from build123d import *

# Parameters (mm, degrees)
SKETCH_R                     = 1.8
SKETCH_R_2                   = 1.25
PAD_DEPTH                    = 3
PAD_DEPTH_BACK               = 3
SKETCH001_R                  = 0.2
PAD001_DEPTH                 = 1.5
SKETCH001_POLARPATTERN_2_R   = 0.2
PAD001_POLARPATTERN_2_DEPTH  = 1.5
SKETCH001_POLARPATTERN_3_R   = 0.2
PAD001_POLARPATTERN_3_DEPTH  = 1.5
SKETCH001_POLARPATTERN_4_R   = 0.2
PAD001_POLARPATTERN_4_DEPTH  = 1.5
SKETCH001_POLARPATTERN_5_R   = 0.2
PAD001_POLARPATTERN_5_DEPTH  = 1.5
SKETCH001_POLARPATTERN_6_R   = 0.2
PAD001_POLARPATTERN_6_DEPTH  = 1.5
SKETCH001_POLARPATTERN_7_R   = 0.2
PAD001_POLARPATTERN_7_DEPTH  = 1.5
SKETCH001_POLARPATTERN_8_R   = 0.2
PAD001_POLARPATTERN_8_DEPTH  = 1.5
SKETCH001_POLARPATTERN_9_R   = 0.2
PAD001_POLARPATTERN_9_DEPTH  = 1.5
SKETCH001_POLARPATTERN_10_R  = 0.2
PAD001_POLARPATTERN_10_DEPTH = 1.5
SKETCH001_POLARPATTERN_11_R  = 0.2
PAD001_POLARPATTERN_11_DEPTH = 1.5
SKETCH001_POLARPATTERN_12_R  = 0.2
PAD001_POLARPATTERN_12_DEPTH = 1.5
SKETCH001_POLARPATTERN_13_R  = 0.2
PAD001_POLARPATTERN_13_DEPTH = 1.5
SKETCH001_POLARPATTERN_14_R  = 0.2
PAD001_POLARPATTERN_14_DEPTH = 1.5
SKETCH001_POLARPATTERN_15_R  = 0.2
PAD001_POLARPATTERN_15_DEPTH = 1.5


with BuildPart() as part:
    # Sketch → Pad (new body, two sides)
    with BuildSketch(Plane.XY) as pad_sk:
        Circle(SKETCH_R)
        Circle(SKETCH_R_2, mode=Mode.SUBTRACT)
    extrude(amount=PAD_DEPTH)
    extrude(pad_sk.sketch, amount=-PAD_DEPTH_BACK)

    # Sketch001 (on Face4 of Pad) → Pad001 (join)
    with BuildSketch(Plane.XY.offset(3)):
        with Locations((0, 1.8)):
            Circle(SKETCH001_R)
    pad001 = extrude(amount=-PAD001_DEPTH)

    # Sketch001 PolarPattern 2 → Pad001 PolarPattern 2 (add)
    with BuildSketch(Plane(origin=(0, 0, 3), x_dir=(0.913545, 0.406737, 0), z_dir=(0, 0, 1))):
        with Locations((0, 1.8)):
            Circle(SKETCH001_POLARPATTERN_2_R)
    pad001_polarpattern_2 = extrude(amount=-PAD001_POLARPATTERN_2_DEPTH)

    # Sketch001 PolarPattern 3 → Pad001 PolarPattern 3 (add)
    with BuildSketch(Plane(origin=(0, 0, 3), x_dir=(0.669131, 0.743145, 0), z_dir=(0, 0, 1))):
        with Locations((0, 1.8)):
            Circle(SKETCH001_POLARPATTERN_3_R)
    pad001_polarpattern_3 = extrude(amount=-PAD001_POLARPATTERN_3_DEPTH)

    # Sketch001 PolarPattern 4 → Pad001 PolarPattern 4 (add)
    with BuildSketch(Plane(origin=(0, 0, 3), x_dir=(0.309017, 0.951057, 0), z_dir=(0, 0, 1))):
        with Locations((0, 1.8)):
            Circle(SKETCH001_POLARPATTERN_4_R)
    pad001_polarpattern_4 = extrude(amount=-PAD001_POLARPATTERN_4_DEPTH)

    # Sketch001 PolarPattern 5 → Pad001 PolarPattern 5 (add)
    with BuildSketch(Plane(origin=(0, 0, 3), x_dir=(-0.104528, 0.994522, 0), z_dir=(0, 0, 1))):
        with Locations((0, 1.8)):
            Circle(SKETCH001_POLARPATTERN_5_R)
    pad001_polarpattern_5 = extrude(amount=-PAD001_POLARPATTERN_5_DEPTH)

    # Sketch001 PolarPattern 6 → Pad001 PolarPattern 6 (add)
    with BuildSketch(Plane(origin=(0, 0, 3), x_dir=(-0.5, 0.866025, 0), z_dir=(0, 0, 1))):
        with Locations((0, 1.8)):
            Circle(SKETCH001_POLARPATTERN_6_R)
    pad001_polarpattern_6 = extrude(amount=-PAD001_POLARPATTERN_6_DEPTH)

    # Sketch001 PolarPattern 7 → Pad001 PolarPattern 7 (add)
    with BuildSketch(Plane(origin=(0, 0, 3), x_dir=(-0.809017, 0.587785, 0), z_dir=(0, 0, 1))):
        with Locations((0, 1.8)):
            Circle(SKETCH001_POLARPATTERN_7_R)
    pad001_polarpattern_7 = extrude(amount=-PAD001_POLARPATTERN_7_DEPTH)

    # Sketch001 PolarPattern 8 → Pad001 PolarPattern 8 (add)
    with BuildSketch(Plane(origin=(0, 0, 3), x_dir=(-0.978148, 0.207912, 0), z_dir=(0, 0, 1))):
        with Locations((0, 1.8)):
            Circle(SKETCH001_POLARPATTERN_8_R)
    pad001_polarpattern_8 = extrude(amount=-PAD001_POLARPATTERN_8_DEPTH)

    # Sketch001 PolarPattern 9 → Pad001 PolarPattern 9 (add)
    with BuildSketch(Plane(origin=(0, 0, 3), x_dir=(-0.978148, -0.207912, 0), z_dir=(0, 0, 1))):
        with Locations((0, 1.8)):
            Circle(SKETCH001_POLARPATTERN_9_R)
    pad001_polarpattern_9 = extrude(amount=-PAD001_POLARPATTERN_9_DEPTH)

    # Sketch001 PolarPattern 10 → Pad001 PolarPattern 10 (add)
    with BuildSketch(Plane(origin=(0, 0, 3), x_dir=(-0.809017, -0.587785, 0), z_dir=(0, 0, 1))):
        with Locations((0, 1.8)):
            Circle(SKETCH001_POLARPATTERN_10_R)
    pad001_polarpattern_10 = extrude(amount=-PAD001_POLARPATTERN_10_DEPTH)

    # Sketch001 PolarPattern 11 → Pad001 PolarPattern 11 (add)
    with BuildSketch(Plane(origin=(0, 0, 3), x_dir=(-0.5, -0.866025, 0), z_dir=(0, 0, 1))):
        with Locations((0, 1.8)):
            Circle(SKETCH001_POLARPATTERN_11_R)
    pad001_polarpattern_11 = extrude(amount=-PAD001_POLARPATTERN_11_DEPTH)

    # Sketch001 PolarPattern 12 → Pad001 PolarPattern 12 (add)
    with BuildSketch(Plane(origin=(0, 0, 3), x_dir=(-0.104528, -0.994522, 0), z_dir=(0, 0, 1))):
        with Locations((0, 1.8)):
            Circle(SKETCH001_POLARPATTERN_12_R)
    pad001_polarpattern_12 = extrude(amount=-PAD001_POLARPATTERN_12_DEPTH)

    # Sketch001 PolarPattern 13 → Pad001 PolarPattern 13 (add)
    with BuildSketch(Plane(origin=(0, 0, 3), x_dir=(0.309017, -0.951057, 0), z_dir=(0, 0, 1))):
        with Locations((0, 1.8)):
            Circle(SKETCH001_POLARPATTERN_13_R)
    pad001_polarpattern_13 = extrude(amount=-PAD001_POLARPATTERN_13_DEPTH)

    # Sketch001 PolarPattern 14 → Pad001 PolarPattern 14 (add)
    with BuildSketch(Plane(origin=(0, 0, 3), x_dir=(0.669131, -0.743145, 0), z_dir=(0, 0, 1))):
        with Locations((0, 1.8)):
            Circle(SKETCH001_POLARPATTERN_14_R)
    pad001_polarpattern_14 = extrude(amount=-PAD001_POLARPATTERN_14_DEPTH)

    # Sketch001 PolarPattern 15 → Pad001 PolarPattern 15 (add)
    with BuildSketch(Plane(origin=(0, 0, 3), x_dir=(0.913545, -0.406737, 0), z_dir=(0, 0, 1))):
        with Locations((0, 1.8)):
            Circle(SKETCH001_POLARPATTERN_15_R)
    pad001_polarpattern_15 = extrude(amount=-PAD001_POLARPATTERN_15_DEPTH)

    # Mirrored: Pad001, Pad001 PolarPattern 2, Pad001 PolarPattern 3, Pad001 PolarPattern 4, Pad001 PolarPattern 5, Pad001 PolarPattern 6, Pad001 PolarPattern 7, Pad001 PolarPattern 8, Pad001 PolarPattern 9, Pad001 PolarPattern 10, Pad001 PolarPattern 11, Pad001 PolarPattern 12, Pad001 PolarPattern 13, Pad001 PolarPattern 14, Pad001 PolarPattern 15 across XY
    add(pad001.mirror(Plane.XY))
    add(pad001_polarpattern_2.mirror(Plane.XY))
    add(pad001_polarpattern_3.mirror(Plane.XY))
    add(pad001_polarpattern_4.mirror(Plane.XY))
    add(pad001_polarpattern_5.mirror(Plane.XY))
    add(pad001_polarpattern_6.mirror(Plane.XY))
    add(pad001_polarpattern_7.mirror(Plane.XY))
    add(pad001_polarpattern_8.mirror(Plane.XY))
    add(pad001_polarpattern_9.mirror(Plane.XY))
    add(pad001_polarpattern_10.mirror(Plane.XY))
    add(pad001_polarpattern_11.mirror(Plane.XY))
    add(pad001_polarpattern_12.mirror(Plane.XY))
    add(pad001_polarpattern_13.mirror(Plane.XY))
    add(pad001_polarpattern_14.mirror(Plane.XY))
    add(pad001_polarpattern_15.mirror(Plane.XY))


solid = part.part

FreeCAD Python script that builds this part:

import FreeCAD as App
import Part
import Sketcher

doc = App.newDocument("Part")
body = doc.addObject("PartDesign::Body", "Body")

# Sketch on XY plane
sketch1 = doc.addObject("Sketcher::SketchObject", "Sketch")
body.addObject(sketch1)
sketch1.AttachmentSupport = (doc.XY_Plane, [""])
sketch1.MapMode = "FlatFace"
sketch1.addGeometry([
    Part.Circle(App.Vector(0, 0, 0), App.Vector(0, 0, 1), 1.8),
    Part.Circle(App.Vector(0, 0, 0), App.Vector(0, 0, 1), 1.25),
], False)
sketch1.addConstraint([
    Sketcher.Constraint("Coincident", 0, 3, -1, 1),
    Sketcher.Constraint("Coincident", 1, 3, -1, 1),
    Sketcher.Constraint("Diameter", 0, 3.6),
    Sketcher.Constraint("Diameter", 1, 2.5),
])
pad1 = doc.addObject("PartDesign::Pad", "Pad")
body.addObject(pad1)
pad1.Profile = sketch1
pad1.Type = "TwoLengths"
pad1.Length = 3
pad1.Length2 = 3

# Sketch on XY plane
sketch2 = doc.addObject("Sketcher::SketchObject", "Sketch001")
body.addObject(sketch2)
sketch2.AttachmentSupport = (doc.XY_Plane, [""])
sketch2.MapMode = "FlatFace"
sketch2.AttachmentOffset = App.Placement(App.Vector(0, 0, 3), App.Rotation())
sketch2.addGeometry(Part.Circle(App.Vector(0, 1.8, 0), App.Vector(0, 0, 1), 0.2), False)
sketch2.addConstraint([
    Sketcher.Constraint("PointOnObject", 0, 3, -2),
    Sketcher.Constraint("Diameter", 0, 0.4),
    Sketcher.Constraint("DistanceY", -1, 1, 0, 3, 1.8),
])
pad2 = doc.addObject("PartDesign::Pad", "Pad001")
body.addObject(pad2)
pad2.Profile = sketch2
pad2.Length = 1.5
pad2.Reversed = True

# Sketch on XY plane
sketch3 = doc.addObject("Sketcher::SketchObject", "Sketch002")
body.addObject(sketch3)
sketch3.AttachmentSupport = (doc.XY_Plane, [""])
sketch3.MapMode = "FlatFace"
sketch3.AttachmentOffset = App.Placement(App.Vector(0, 0, 3), App.Rotation())
sketch3.addGeometry(Part.Circle(App.Vector(-0.732127, 1.644381, 0), App.Vector(0, 0, 1), 0.2), False)
sketch3.addConstraint([
    Sketcher.Constraint("Diameter", 0, 0.4),
    Sketcher.Constraint("DistanceY", -1, 1, 0, 3, 1.644381),
    Sketcher.Constraint("DistanceX", 0, 3, -1, 1, 0.732127),
])
pad3 = doc.addObject("PartDesign::Pad", "Pad002")
body.addObject(pad3)
pad3.Profile = sketch3
pad3.Length = 1.5
pad3.Reversed = True

# Sketch on XY plane
sketch4 = doc.addObject("Sketcher::SketchObject", "Sketch003")
body.addObject(sketch4)
sketch4.AttachmentSupport = (doc.XY_Plane, [""])
sketch4.MapMode = "FlatFace"
sketch4.AttachmentOffset = App.Placement(App.Vector(0, 0, 3), App.Rotation())
sketch4.addGeometry(Part.Circle(App.Vector(-1.33766, 1.204435, 0), App.Vector(0, 0, 1), 0.2), False)
sketch4.addConstraint([
    Sketcher.Constraint("Diameter", 0, 0.4),
    Sketcher.Constraint("DistanceX", 0, 3, -1, 1, 1.33766),
    Sketcher.Constraint("DistanceY", -1, 1, 0, 3, 1.204435),
])
pad4 = doc.addObject("PartDesign::Pad", "Pad003")
body.addObject(pad4)
pad4.Profile = sketch4
pad4.Length = 1.5
pad4.Reversed = True

# Sketch on XY plane
sketch5 = doc.addObject("Sketcher::SketchObject", "Sketch004")
body.addObject(sketch5)
sketch5.AttachmentSupport = (doc.XY_Plane, [""])
sketch5.MapMode = "FlatFace"
sketch5.AttachmentOffset = App.Placement(App.Vector(0, 0, 3), App.Rotation())
sketch5.addGeometry(Part.Circle(App.Vector(-1.711902, 0.55623, 0), App.Vector(0, 0, 1), 0.2), False)
sketch5.addConstraint([
    Sketcher.Constraint("Diameter", 0, 0.4),
    Sketcher.Constraint("DistanceX", 0, 3, -1, 1, 1.711902),
    Sketcher.Constraint("DistanceY", -1, 1, 0, 3, 0.55623),
])
pad5 = doc.addObject("PartDesign::Pad", "Pad004")
body.addObject(pad5)
pad5.Profile = sketch5
pad5.Length = 1.5
pad5.Reversed = True

# Sketch on XY plane
sketch6 = doc.addObject("Sketcher::SketchObject", "Sketch005")
body.addObject(sketch6)
sketch6.AttachmentSupport = (doc.XY_Plane, [""])
sketch6.MapMode = "FlatFace"
sketch6.AttachmentOffset = App.Placement(App.Vector(0, 0, 3), App.Rotation())
sketch6.addGeometry(Part.Circle(App.Vector(-1.79014, -0.18815, 0), App.Vector(0, 0, 1), 0.2), False)
sketch6.addConstraint([
    Sketcher.Constraint("Diameter", 0, 0.4),
    Sketcher.Constraint("DistanceX", 0, 3, -1, 1, 1.79014),
    Sketcher.Constraint("DistanceY", 0, 3, -1, 1, 0.18815),
])
pad6 = doc.addObject("PartDesign::Pad", "Pad005")
body.addObject(pad6)
pad6.Profile = sketch6
pad6.Length = 1.5
pad6.Reversed = True

# Sketch on XY plane
sketch7 = doc.addObject("Sketcher::SketchObject", "Sketch006")
body.addObject(sketch7)
sketch7.AttachmentSupport = (doc.XY_Plane, [""])
sketch7.MapMode = "FlatFace"
sketch7.AttachmentOffset = App.Placement(App.Vector(0, 0, 3), App.Rotation())
sketch7.addGeometry(Part.Circle(App.Vector(-1.558846, -0.9, 0), App.Vector(0, 0, 1), 0.2), False)
sketch7.addConstraint([
    Sketcher.Constraint("Diameter", 0, 0.4),
    Sketcher.Constraint("DistanceY", 0, 3, -1, 1, 0.9),
    Sketcher.Constraint("DistanceX", 0, 3, -1, 1, 1.558846),
])
pad7 = doc.addObject("PartDesign::Pad", "Pad006")
body.addObject(pad7)
pad7.Profile = sketch7
pad7.Length = 1.5
pad7.Reversed = True

# Sketch on XY plane
sketch8 = doc.addObject("Sketcher::SketchObject", "Sketch007")
body.addObject(sketch8)
sketch8.AttachmentSupport = (doc.XY_Plane, [""])
sketch8.MapMode = "FlatFace"
sketch8.AttachmentOffset = App.Placement(App.Vector(0, 0, 3), App.Rotation())
sketch8.addGeometry(Part.Circle(App.Vector(-1.058013, -1.456231, 0), App.Vector(0, 0, 1), 0.2), False)
sketch8.addConstraint([
    Sketcher.Constraint("Diameter", 0, 0.4),
    Sketcher.Constraint("DistanceY", 0, 3, -1, 1, 1.456231),
    Sketcher.Constraint("DistanceX", 0, 3, -1, 1, 1.058013),
])
pad8 = doc.addObject("PartDesign::Pad", "Pad007")
body.addObject(pad8)
pad8.Profile = sketch8
pad8.Length = 1.5
pad8.Reversed = True

# Sketch on XY plane
sketch9 = doc.addObject("Sketcher::SketchObject", "Sketch008")
body.addObject(sketch9)
sketch9.AttachmentSupport = (doc.XY_Plane, [""])
sketch9.MapMode = "FlatFace"
sketch9.AttachmentOffset = App.Placement(App.Vector(0, 0, 3), App.Rotation())
sketch9.addGeometry(Part.Circle(App.Vector(-0.374241, -1.760666, 0), App.Vector(0, 0, 1), 0.2), False)
sketch9.addConstraint([
    Sketcher.Constraint("Diameter", 0, 0.4),
    Sketcher.Constraint("DistanceX", 0, 3, -1, 1, 0.374241),
    Sketcher.Constraint("DistanceY", 0, 3, -1, 1, 1.760666),
])
pad9 = doc.addObject("PartDesign::Pad", "Pad008")
body.addObject(pad9)
pad9.Profile = sketch9
pad9.Length = 1.5
pad9.Reversed = True

# Sketch on XY plane
sketch10 = doc.addObject("Sketcher::SketchObject", "Sketch009")
body.addObject(sketch10)
sketch10.AttachmentSupport = (doc.XY_Plane, [""])
sketch10.MapMode = "FlatFace"
sketch10.AttachmentOffset = App.Placement(App.Vector(0, 0, 3), App.Rotation())
sketch10.addGeometry(Part.Circle(App.Vector(0.374241, -1.760666, 0), App.Vector(0, 0, 1), 0.2), False)
sketch10.addConstraint([
    Sketcher.Constraint("Diameter", 0, 0.4),
    Sketcher.Constraint("DistanceX", -1, 1, 0, 3, 0.374241),
    Sketcher.Constraint("DistanceY", 0, 3, -1, 1, 1.760666),
])
pad10 = doc.addObject("PartDesign::Pad", "Pad009")
body.addObject(pad10)
pad10.Profile = sketch10
pad10.Length = 1.5
pad10.Reversed = True

# Sketch on XY plane
sketch11 = doc.addObject("Sketcher::SketchObject", "Sketch010")
body.addObject(sketch11)
sketch11.AttachmentSupport = (doc.XY_Plane, [""])
sketch11.MapMode = "FlatFace"
sketch11.AttachmentOffset = App.Placement(App.Vector(0, 0, 3), App.Rotation())
sketch11.addGeometry(Part.Circle(App.Vector(1.058013, -1.456231, 0), App.Vector(0, 0, 1), 0.2), False)
sketch11.addConstraint([
    Sketcher.Constraint("Diameter", 0, 0.4),
    Sketcher.Constraint("DistanceY", 0, 3, -1, 1, 1.456231),
    Sketcher.Constraint("DistanceX", -1, 1, 0, 3, 1.058013),
])
pad11 = doc.addObject("PartDesign::Pad", "Pad010")
body.addObject(pad11)
pad11.Profile = sketch11
pad11.Length = 1.5
pad11.Reversed = True

# Sketch on XY plane
sketch12 = doc.addObject("Sketcher::SketchObject", "Sketch011")
body.addObject(sketch12)
sketch12.AttachmentSupport = (doc.XY_Plane, [""])
sketch12.MapMode = "FlatFace"
sketch12.AttachmentOffset = App.Placement(App.Vector(0, 0, 3), App.Rotation())
sketch12.addGeometry(Part.Circle(App.Vector(1.558846, -0.9, 0), App.Vector(0, 0, 1), 0.2), False)
sketch12.addConstraint([
    Sketcher.Constraint("Diameter", 0, 0.4),
    Sketcher.Constraint("DistanceY", 0, 3, -1, 1, 0.9),
    Sketcher.Constraint("DistanceX", -1, 1, 0, 3, 1.558846),
])
pad12 = doc.addObject("PartDesign::Pad", "Pad011")
body.addObject(pad12)
pad12.Profile = sketch12
pad12.Length = 1.5
pad12.Reversed = True

# Sketch on XY plane
sketch13 = doc.addObject("Sketcher::SketchObject", "Sketch012")
body.addObject(sketch13)
sketch13.AttachmentSupport = (doc.XY_Plane, [""])
sketch13.MapMode = "FlatFace"
sketch13.AttachmentOffset = App.Placement(App.Vector(0, 0, 3), App.Rotation())
sketch13.addGeometry(Part.Circle(App.Vector(1.79014, -0.18815, 0), App.Vector(0, 0, 1), 0.2), False)
sketch13.addConstraint([
    Sketcher.Constraint("Diameter", 0, 0.4),
    Sketcher.Constraint("DistanceX", -1, 1, 0, 3, 1.79014),
    Sketcher.Constraint("DistanceY", 0, 3, -1, 1, 0.18815),
])
pad13 = doc.addObject("PartDesign::Pad", "Pad012")
body.addObject(pad13)
pad13.Profile = sketch13
pad13.Length = 1.5
pad13.Reversed = True

# Sketch on XY plane
sketch14 = doc.addObject("Sketcher::SketchObject", "Sketch013")
body.addObject(sketch14)
sketch14.AttachmentSupport = (doc.XY_Plane, [""])
sketch14.MapMode = "FlatFace"
sketch14.AttachmentOffset = App.Placement(App.Vector(0, 0, 3), App.Rotation())
sketch14.addGeometry(Part.Circle(App.Vector(1.711902, 0.55623, 0), App.Vector(0, 0, 1), 0.2), False)
sketch14.addConstraint([
    Sketcher.Constraint("Diameter", 0, 0.4),
    Sketcher.Constraint("DistanceX", -1, 1, 0, 3, 1.711902),
    Sketcher.Constraint("DistanceY", -1, 1, 0, 3, 0.55623),
])
pad14 = doc.addObject("PartDesign::Pad", "Pad013")
body.addObject(pad14)
pad14.Profile = sketch14
pad14.Length = 1.5
pad14.Reversed = True

# Sketch on XY plane
sketch15 = doc.addObject("Sketcher::SketchObject", "Sketch014")
body.addObject(sketch15)
sketch15.AttachmentSupport = (doc.XY_Plane, [""])
sketch15.MapMode = "FlatFace"
sketch15.AttachmentOffset = App.Placement(App.Vector(0, 0, 3), App.Rotation())
sketch15.addGeometry(Part.Circle(App.Vector(1.33766, 1.204435, 0), App.Vector(0, 0, 1), 0.2), False)
sketch15.addConstraint([
    Sketcher.Constraint("Diameter", 0, 0.4),
    Sketcher.Constraint("DistanceX", -1, 1, 0, 3, 1.33766),
    Sketcher.Constraint("DistanceY", -1, 1, 0, 3, 1.204435),
])
pad15 = doc.addObject("PartDesign::Pad", "Pad014")
body.addObject(pad15)
pad15.Profile = sketch15
pad15.Length = 1.5
pad15.Reversed = True

# Sketch on XY plane
sketch16 = doc.addObject("Sketcher::SketchObject", "Sketch015")
body.addObject(sketch16)
sketch16.AttachmentSupport = (doc.XY_Plane, [""])
sketch16.MapMode = "FlatFace"
sketch16.AttachmentOffset = App.Placement(App.Vector(0, 0, 3), App.Rotation())
sketch16.addGeometry(Part.Circle(App.Vector(0.732127, 1.644381, 0), App.Vector(0, 0, 1), 0.2), False)
sketch16.addConstraint([
    Sketcher.Constraint("Diameter", 0, 0.4),
    Sketcher.Constraint("DistanceY", -1, 1, 0, 3, 1.644381),
    Sketcher.Constraint("DistanceX", -1, 1, 0, 3, 0.732127),
])
pad16 = doc.addObject("PartDesign::Pad", "Pad015")
body.addObject(pad16)
pad16.Profile = sketch16
pad16.Length = 1.5
pad16.Reversed = True
doc.recompute()

mirrored = doc.addObject("PartDesign::Mirrored", "Mirrored")
body.addObject(mirrored)
mirrored.Originals = [pad2, pad3, pad4, pad5, pad6, pad7, pad8, pad9, pad10, pad11, pad12, pad13, pad14, pad15, pad16]
mirrored.MirrorPlane = (doc.XY_Plane, [""])
body.Tip = mirrored

doc.recompute()
